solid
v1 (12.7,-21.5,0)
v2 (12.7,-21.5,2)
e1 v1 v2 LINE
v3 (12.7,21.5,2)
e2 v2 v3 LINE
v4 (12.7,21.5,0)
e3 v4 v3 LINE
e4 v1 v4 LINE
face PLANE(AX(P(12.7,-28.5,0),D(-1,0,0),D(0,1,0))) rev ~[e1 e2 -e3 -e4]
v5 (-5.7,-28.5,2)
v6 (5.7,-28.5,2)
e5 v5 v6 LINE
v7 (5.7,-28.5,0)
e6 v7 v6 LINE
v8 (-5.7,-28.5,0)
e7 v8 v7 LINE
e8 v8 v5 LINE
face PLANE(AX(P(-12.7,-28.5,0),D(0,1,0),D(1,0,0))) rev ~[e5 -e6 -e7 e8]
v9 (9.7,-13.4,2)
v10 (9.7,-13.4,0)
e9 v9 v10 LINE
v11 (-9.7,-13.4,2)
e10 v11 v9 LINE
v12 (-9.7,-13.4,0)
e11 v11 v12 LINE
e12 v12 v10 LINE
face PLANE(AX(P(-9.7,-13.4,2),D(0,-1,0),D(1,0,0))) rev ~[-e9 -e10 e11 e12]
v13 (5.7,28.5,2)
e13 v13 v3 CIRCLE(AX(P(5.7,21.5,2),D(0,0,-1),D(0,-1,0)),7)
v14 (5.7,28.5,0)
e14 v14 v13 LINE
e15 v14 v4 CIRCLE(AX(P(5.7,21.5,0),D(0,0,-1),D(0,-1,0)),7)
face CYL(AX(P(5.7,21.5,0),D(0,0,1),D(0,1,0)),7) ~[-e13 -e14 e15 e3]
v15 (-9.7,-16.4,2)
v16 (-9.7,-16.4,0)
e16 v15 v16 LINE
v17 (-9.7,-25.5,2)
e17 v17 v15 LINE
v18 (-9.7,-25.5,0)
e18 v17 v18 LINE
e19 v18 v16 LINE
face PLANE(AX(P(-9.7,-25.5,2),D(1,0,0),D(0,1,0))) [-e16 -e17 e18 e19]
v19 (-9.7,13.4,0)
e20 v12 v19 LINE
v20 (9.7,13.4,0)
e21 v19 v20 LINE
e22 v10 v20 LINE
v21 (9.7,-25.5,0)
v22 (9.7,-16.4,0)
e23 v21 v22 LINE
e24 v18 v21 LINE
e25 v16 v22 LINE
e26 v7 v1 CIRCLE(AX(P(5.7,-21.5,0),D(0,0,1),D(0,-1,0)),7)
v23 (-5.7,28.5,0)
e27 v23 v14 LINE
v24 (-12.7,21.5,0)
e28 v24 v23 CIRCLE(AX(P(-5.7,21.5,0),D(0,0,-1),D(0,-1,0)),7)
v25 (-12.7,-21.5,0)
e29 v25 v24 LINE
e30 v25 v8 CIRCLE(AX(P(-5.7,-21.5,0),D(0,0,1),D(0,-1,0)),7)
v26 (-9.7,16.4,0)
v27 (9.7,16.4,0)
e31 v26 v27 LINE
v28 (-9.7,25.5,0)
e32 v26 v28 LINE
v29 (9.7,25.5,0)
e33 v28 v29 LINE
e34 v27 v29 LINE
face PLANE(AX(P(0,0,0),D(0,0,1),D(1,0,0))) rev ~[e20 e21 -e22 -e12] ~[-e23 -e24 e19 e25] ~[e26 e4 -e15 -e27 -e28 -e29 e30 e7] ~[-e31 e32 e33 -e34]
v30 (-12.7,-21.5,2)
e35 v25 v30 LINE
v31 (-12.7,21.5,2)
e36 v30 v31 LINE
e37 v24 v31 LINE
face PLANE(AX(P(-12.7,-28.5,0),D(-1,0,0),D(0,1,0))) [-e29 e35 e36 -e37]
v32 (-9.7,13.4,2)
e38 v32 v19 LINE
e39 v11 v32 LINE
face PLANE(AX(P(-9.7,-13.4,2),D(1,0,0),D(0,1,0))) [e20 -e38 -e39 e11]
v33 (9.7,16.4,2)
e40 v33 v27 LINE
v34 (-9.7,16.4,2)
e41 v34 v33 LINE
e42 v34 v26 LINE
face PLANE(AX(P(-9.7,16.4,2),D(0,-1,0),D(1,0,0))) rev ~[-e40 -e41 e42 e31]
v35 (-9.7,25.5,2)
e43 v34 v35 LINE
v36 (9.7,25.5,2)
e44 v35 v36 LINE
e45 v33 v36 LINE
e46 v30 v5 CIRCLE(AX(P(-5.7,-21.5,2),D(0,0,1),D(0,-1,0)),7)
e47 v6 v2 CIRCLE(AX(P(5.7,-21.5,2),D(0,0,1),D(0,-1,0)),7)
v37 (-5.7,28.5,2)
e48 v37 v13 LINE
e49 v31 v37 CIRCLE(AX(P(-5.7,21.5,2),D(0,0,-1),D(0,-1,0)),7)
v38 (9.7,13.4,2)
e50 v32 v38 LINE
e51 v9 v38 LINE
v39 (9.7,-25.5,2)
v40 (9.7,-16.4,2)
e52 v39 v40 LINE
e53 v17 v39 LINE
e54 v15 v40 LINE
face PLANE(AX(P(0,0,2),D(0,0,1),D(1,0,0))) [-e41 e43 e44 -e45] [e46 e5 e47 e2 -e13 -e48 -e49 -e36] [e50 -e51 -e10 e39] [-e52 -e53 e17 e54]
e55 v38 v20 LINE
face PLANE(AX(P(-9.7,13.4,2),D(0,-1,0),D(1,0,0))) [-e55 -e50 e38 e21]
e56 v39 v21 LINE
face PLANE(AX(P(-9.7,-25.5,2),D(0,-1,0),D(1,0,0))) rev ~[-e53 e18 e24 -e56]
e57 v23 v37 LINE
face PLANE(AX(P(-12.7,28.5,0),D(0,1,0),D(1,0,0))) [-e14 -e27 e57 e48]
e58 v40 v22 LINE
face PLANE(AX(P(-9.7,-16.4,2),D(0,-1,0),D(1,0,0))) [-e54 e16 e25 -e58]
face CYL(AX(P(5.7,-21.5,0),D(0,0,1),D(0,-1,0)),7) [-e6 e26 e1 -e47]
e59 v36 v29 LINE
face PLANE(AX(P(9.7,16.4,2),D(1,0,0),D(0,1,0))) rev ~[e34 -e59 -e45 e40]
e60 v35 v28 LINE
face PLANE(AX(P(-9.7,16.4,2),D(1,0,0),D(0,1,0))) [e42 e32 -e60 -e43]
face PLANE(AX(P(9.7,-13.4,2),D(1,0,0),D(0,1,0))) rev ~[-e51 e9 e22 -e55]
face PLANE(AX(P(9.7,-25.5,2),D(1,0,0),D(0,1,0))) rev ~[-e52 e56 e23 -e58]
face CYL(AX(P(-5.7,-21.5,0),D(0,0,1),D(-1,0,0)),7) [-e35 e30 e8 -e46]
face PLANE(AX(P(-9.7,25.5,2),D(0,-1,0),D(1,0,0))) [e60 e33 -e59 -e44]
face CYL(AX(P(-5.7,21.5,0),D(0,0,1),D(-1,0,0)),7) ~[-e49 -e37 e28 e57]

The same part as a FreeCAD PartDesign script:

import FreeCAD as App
import Part
import Sketcher
from FreeCAD import Vector
Q = App.Units.Quantity


def edges_at(feature, points):
    """Names of the edges that pass closest to the given points."""
    edges = feature.Shape.Edges
    near = lambda p: min(range(len(edges)), key=lambda i: edges[i].distToShape(Part.Vertex(*p))[0])
    return sorted({f"Edge{near(p) + 1}" for p in points})

doc = App.newDocument("Part")
body = doc.addObject("PartDesign::Body", "Body")

# Sketch on XY plane
sketch1 = body.newObject("Sketcher::SketchObject", "Sketch")
sketch1.AttachmentSupport = (doc.getObject("XY_Plane"), [""])
sketch1.MapMode = "FlatFace"
sketch1.addGeometry(Part.LineSegment(Vector(-13, 28, 0), Vector(-13, -28, 0)), False)
sketch1.addGeometry(Part.LineSegment(Vector(-13, -28, 0), Vector(13, -28, 0)), False)
sketch1.addGeometry(Part.LineSegment(Vector(13, -28, 0), Vector(13, 28, 0)), False)
sketch1.addGeometry(Part.LineSegment(Vector(13, 28, 0), Vector(-13, 28, 0)), False)
sketch1.addConstraint(Sketcher.Constraint("Coincident", 0, 2, 1, 1))
sketch1.addConstraint(Sketcher.Constraint("Coincident", 1, 2, 2, 1))
sketch1.addConstraint(Sketcher.Constraint("Coincident", 2, 2, 3, 1))
sketch1.addConstraint(Sketcher.Constraint("Coincident", 3, 2, 0, 1))
sketch1.addConstraint(Sketcher.Constraint("Vertical", 0))
sketch1.addConstraint(Sketcher.Constraint("Horizontal", 1))
sketch1.addConstraint(Sketcher.Constraint("Vertical", 2))
sketch1.addConstraint(Sketcher.Constraint("Horizontal", 3))
sketch1.addConstraint(Sketcher.Constraint("Symmetric", 0, 2, 2, 2, -1, 1))
sketch1.addConstraint(Sketcher.Constraint("DistanceY", 0, 2, 0, 1, Q("57 mm")))
sketch1.addConstraint(Sketcher.Constraint("DistanceX", 1, 1, 1, 2, Q("25.4 mm")))
pad1 = body.newObject("PartDesign::Pad", "Pad")
pad1.Profile = sketch1
pad1.Length = 2

# Sketch on XY plane
sketch2 = body.newObject("Sketcher::SketchObject", "Sketch001")
sketch2.AttachmentSupport = (doc.getObject("XY_Plane"), [""])
sketch2.MapMode = "FlatFace"
sketch2.AttachmentOffset = App.Placement(Vector(0, 0, 2), App.Rotation())
sketch2.addGeometry(Part.LineSegment(Vector(-10, 26, 0), Vector(-10, 16, 0)), False)
sketch2.addGeometry(Part.LineSegment(Vector(-10, 16, 0), Vector(10, 16, 0)), False)
sketch2.addGeometry(Part.LineSegment(Vector(10, 16, 0), Vector(10, 26, 0)), False)
sketch2.addGeometry(Part.LineSegment(Vector(10, 26, 0), Vector(-10, 26, 0)), False)
sketch2.addGeometry(Part.LineSegment(Vector(-10, 13, 0), Vector(-10, -13, 0)), False)
sketch2.addGeometry(Part.LineSegment(Vector(-10, -13, 0), Vector(10, -13, 0)), False)
sketch2.addGeometry(Part.LineSegment(Vector(10, -13, 0), Vector(10, 13, 0)), False)
sketch2.addGeometry(Part.LineSegment(Vector(10, 13, 0), Vector(-10, 13, 0)), False)
sketch2.addGeometry(Part.LineSegment(Vector(-10, -16, 0), Vector(-10, -26, 0)), False)
sketch2.addGeometry(Part.LineSegment(Vector(-10, -26, 0), Vector(10, -26, 0)), False)
sketch2.addGeometry(Part.LineSegment(Vector(10, -26, 0), Vector(10, -16, 0)), False)
sketch2.addGeometry(Part.LineSegment(Vector(10, -16, 0), Vector(-10, -16, 0)), False)
sketch2.addConstraint(Sketcher.Constraint("Coincident", 0, 2, 1, 1))
sketch2.addConstraint(Sketcher.Constraint("Coincident", 1, 2, 2, 1))
sketch2.addConstraint(Sketcher.Constraint("Coincident", 2, 2, 3, 1))
sketch2.addConstraint(Sketcher.Constraint("Coincident", 3, 2, 0, 1))
sketch2.addConstraint(Sketcher.Constraint("Coincident", 4, 2, 5, 1))
sketch2.addConstraint(Sketcher.Constraint("Coincident", 5, 2, 6, 1))
sketch2.addConstraint(Sketcher.Constraint("Coincident", 6, 2, 7, 1))
sketch2.addConstraint(Sketcher.Constraint("Coincident", 7, 2, 4, 1))
sketch2.addConstraint(Sketcher.Constraint("Coincident", 8, 2, 9, 1))
sketch2.addConstraint(Sketcher.Constraint("Coincident", 9, 2, 10, 1))
sketch2.addConstraint(Sketcher.Constraint("Coincident", 10, 2, 11, 1))
sketch2.addConstraint(Sketcher.Constraint("Coincident", 11, 2, 8, 1))
sketch2.addConstraint(Sketcher.Constraint("Vertical", 0))
sketch2.addConstraint(Sketcher.Constraint("Horizontal", 1))
sketch2.addConstraint(Sketcher.Constraint("Vertical", 2))
sketch2.addConstraint(Sketcher.Constraint("Horizontal", 3))
sketch2.addConstraint(Sketcher.Constraint("Vertical", 4))
sketch2.addConstraint(Sketcher.Constraint("Horizontal", 5))
sketch2.addConstraint(Sketcher.Constraint("Vertical", 6))
sketch2.addConstraint(Sketcher.Constraint("Horizontal", 7))
sketch2.addConstraint(Sketcher.Constraint("Vertical", 8))
sketch2.addConstraint(Sketcher.Constraint("Horizontal", 9))
sketch2.addConstraint(Sketcher.Constraint("Vertical", 10))
sketch2.addConstraint(Sketcher.Constraint("Horizontal", 11))
sketch2.addConstraint(Sketcher.Constraint("Symmetric", 4, 2, 6, 2, -1, 1))
sketch2.addConstraint(Sketcher.Constraint("Symmetric", 2, 2, 8, 2, -1, 1))
sketch2.addConstraint(Sketcher.Constraint("Symmetric", 0, 2, 10, 2, -1, 1))
sketch2.addConstraint(Sketcher.Constraint("Vertical", 3, 2, 4, 2))
sketch2.addConstraint(Sketcher.Constraint("Vertical", 2, 2, 5, 2))
sketch2.addConstraint(Sketcher.Constraint("DistanceX", 1, 1, 1, 2, Q("19.4 mm")))
sketch2.addConstraint(Sketcher.Constraint("DistanceY", 0, 2, 0, 1, Q("9.1 mm")))
sketch2.addConstraint(Sketcher.Constraint("DistanceY", 4, 2, 4, 1, Q("26.8 mm")))
sketch2.addConstraint(Sketcher.Constraint("DistanceY", 6, 2, 1, 2, Q("3 mm")))
pocket1 = body.newObject("PartDesign::Pocket", "Pocket")
pocket1.Profile = sketch2
pocket1.Type = "ThroughAll"
doc.recompute()

fillet = body.newObject("PartDesign::Fillet", "Fillet")
fillet.Base = (pocket1, edges_at(pocket1, [
    (12.7, 28.5, 1),
    (12.7, -28.5, 1),
    (-12.7, -28.5, 1),
    (-12.7, 28.5, 1),
]))
fillet.Radius = 7

doc.recompute()
